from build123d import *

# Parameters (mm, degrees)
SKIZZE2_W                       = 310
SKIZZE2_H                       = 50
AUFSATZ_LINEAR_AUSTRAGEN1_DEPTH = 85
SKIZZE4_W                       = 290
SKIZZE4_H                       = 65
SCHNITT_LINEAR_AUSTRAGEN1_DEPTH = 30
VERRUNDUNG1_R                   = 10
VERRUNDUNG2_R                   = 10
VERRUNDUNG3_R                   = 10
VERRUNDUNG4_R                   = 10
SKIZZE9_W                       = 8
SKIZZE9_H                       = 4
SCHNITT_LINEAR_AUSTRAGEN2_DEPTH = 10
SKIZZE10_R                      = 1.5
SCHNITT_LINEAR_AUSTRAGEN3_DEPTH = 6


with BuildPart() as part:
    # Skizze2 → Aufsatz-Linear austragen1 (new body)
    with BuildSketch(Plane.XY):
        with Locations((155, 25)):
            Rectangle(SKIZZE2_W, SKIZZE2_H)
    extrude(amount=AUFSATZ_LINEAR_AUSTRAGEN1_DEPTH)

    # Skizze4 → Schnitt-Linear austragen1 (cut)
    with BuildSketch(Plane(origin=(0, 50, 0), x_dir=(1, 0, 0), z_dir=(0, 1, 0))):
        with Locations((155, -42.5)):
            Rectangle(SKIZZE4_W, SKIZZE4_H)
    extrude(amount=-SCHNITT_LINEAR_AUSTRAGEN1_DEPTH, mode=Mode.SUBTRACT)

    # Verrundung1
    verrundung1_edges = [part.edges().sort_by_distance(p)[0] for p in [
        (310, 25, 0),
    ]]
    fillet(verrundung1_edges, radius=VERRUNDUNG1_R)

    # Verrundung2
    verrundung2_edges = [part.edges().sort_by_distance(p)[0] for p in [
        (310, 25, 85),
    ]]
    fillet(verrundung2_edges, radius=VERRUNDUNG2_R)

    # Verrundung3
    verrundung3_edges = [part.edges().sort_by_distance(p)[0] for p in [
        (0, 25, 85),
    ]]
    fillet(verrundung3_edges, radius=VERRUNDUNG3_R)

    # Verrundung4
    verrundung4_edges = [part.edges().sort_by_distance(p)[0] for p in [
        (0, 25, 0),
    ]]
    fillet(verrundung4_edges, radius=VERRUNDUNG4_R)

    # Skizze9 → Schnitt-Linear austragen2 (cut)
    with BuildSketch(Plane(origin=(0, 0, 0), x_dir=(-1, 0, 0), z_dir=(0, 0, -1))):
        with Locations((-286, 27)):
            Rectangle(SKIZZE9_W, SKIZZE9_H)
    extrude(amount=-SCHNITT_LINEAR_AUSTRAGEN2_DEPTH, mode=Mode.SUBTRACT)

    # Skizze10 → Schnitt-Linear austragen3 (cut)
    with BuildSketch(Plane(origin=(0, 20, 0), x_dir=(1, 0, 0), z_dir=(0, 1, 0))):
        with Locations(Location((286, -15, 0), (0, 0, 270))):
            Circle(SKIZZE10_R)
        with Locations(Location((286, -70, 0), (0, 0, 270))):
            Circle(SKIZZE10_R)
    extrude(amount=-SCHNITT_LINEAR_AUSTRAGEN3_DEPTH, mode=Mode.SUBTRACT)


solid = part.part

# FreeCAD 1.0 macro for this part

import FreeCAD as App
import Part
import Sketcher
from FreeCAD import Vector


def edges_at(feature, points):
    """Names of the edges that pass closest to the given points."""
    edges = feature.Shape.Edges
    near = lambda p: min(range(len(edges)), key=lambda i: edges[i].distToShape(Part.Vertex(*p))[0])
    return sorted({f"Edge{near(p) + 1}" for p in points})

doc = App.newDocument("Part")
body = doc.addObject("PartDesign::Body", "Body")

# Sketch on XY plane
sketch1 = body.newObject("Sketcher::SketchObject", "Sketch")
sketch1.AttachmentSupport = (doc.getObject("XY_Plane"), [""])
sketch1.MapMode = "FlatFace"
sketch1.addGeometry([
    Part.LineSegment(Vector(0, 50, 0), Vector(0, 0, 0)),
    Part.LineSegment(Vector(0, 0, 0), Vector(310, 0, 0)),
    Part.LineSegment(Vector(310, 0, 0), Vector(310, 50, 0)),
    Part.LineSegment(Vector(310, 50, 0), Vector(0, 50, 0)),
], False)
sketch1.addConstraint([
    Sketcher.Constraint("Coincident", 0, 2, 1, 1),
    Sketcher.Constraint("Coincident", 1, 2, 2, 1),
    Sketcher.Constraint("Coincident", 2, 2, 3, 1),
    Sketcher.Constraint("Coincident", 3, 2, 0, 1),
    Sketcher.Constraint("Vertical", 0),
    Sketcher.Constraint("Horizontal", 1),
    Sketcher.Constraint("Vertical", 2),
    Sketcher.Constraint("Horizontal", 3),
    Sketcher.Constraint("Coincident", 0, 2, -1, 1),
    Sketcher.Constraint("DistanceX", 1, 1, 1, 2, 310.0),
    Sketcher.Constraint("DistanceY", 0, 2, 0, 1, 50.0),
])
pad1 = body.newObject("PartDesign::Pad", "Pad")
pad1.Profile = sketch1
pad1.Length = 85

# Sketch on XZ plane
sketch2 = body.newObject("Sketcher::SketchObject", "Sketch001")
sketch2.AttachmentSupport = (doc.getObject("XZ_Plane"), [""])
sketch2.MapMode = "FlatFace"
sketch2.AttachmentOffset = App.Placement(Vector(0, 0, -50), App.Rotation())
sketch2.addGeometry([
    Part.LineSegment(Vector(10, 10, 0), Vector(10, 75, 0)),
    Part.LineSegment(Vector(10, 75, 0), Vector(300, 75, 0)),
    Part.LineSegment(Vector(300, 75, 0), Vector(300, 10, 0)),
    Part.LineSegment(Vector(300, 10, 0), Vector(10, 10, 0)),
], False)
sketch2.addConstraint([
    Sketcher.Constraint("Coincident", 0, 2, 1, 1),
    Sketcher.Constraint("Coincident", 1, 2, 2, 1),
    Sketcher.Constraint("Coincident", 2, 2, 3, 1),
    Sketcher.Constraint("Coincident", 3, 2, 0, 1),
    Sketcher.Constraint("Vertical", 0),
    Sketcher.Constraint("Horizontal", 1),
    Sketcher.Constraint("Vertical", 2),
    Sketcher.Constraint("Horizontal", 3),
    Sketcher.Constraint("DistanceX", 1, 1, 1, 2, 290.0),
    Sketcher.Constraint("DistanceY", 0, 1, 0, 2, 65.0),
    Sketcher.Constraint("DistanceX", -1, 1, 0, 2, 10.0),
    Sketcher.Constraint("DistanceY", -1, 1, 0, 2, 75.0),
])
pocket1 = body.newObject("PartDesign::Pocket", "Pocket")
pocket1.Profile = sketch2
pocket1.Length = 30
pocket1.Reversed = True
doc.recompute()

fillet = body.newObject("PartDesign::Fillet", "Fillet")
fillet.Base = (pocket1, edges_at(pocket1, [(310, 25, 0)]))
fillet.Radius = 10
doc.recompute()

fillet2 = body.newObject("PartDesign::Fillet", "Fillet001")
fillet2.Base = (fillet, edges_at(fillet, [(310, 25, 85)]))
fillet2.Radius = 10
doc.recompute()

fillet3 = body.newObject("PartDesign::Fillet", "Fillet002")
fillet3.Base = (fillet2, edges_at(fillet2, [(0, 25, 85)]))
fillet3.Radius = 10
doc.recompute()

fillet4 = body.newObject("PartDesign::Fillet", "Fillet003")
fillet4.Base = (fillet3, edges_at(fillet3, [(0, 25, 0)]))
fillet4.Radius = 10

# Sketch on XY plane
sketch3 = body.newObject("Sketcher::SketchObject", "Sketch002")
sketch3.AttachmentSupport = (doc.getObject("XY_Plane"), [""])
sketch3.MapMode = "FlatFace"
sketch3.addGeometry([
    Part.LineSegment(Vector(290, 29, 0), Vector(290, 25, 0)),
    Part.LineSegment(Vector(290, 25, 0), Vector(282, 25, 0)),
    Part.LineSegment(Vector(282, 25, 0), Vector(282, 29, 0)),
    Part.LineSegment(Vector(282, 29, 0), Vector(290, 29, 0)),
], False)
sketch3.addConstraint([
    Sketcher.Constraint("Coincident", 0, 2, 1, 1),
    Sketcher.Constraint("Coincident", 1, 2, 2, 1),
    Sketcher.Constraint("Coincident", 2, 2, 3, 1),
    Sketcher.Constraint("Coincident", 3, 2, 0, 1),
    Sketcher.Constraint("Vertical", 0),
    Sketcher.Constraint("Horizontal", 1),
    Sketcher.Constraint("Vertical", 2),
    Sketcher.Constraint("Horizontal", 3),
    Sketcher.Constraint("DistanceX", 1, 2, 1, 1, 8.0),
    Sketcher.Constraint("DistanceY", 0, 2, 0, 1, 4.0),
    Sketcher.Constraint("DistanceX", -1, 1, 0, 2, 290.0),
    Sketcher.Constraint("DistanceY", -1, 1, 0, 2, 25.0),
])
pocket2 = body.newObject("PartDesign::Pocket", "Pocket001")
pocket2.Profile = sketch3
pocket2.Length = 10
pocket2.Reversed = True

# Sketch on XZ plane
sketch4 = body.newObject("Sketcher::SketchObject", "Sketch003")
sketch4.AttachmentSupport = (doc.getObject("XZ_Plane"), [""])
sketch4.MapMode = "FlatFace"
sketch4.AttachmentOffset = App.Placement(Vector(0, 0, -20), App.Rotation())
sketch4.addGeometry([
    Part.Circle(Vector(286, 15, 0), Vector(0, 0, 1), 1.5),
    Part.Circle(Vector(286, 70, 0), Vector(0, 0, 1), 1.5),
], False)
sketch4.addConstraint([
    Sketcher.Constraint("Equal", 0, 1),
    Sketcher.Constraint("Vertical", 0, 3, 1, 3),
    Sketcher.Constraint("Diameter", 0, 3.0),
    Sketcher.Constraint("DistanceX", -1, 1, 0, 3, 286.0),
    Sketcher.Constraint("DistanceY", -1, 1, 0, 3, 15.0),
    Sketcher.Constraint("DistanceY", -1, 1, 1, 3, 70.0),
])
pocket3 = body.newObject("PartDesign::Pocket", "Pocket002")
pocket3.Profile = sketch4
pocket3.Length = 6
pocket3.Reversed = True

doc.recompute()
